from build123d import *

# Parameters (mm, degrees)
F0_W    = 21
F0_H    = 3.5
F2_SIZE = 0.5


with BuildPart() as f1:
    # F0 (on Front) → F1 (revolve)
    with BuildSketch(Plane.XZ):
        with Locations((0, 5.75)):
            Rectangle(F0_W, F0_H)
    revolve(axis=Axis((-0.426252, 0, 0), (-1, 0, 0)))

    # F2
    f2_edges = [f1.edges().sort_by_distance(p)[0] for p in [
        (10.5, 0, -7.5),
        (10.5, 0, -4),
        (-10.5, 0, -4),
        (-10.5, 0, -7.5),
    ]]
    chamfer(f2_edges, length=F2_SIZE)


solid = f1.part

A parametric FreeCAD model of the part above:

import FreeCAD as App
import Part
import Sketcher
Q = App.Units.Quantity


def edges_at(feature, points):
    """Names of the edges that pass closest to the given points."""
    edges = feature.Shape.Edges
    near = lambda p: min(range(len(edges)), key=lambda i: edges[i].distToShape(Part.Vertex(*p))[0])
    return sorted({f"Edge{near(p) + 1}" for p in points})


def add_polygon(sketch, points):
    """Adds a closed chain of lines whose ends are joined by coincident constraints."""
    first, n = sketch.GeometryCount, len(points)
    for a, b in zip(points, points[1:] + points[:1]):
        sketch.addGeometry(Part.LineSegment(App.Vector(*a, 0), App.Vector(*b, 0)), False)
    for i in range(n):
        sketch.addConstraint(Sketcher.Constraint("Coincident", first + i, 2, first + (i + 1) % n, 1))

doc = App.newDocument("Part")
body = doc.addObject("PartDesign::Body", "Body")

# Sketch on XZ plane
sketch1 = body.newObject("Sketcher::SketchObject", "Sketch")
sketch1.AttachmentSupport = (doc.getObject("XZ_Plane"), [""])
sketch1.MapMode = "FlatFace"
add_polygon(sketch1, [(-10.5, 7.5), (-10.5, 4), (10.5, 4), (10.5, 7.5)])  # lines 0-3
sketch1.addConstraint(Sketcher.Constraint("Vertical", 0))
sketch1.addConstraint(Sketcher.Constraint("Horizontal", 1))
sketch1.addConstraint(Sketcher.Constraint("Vertical", 2))
sketch1.addConstraint(Sketcher.Constraint("Horizontal", 3))
sketch1.addConstraint(Sketcher.Constraint("DistanceX", 1, 1, 1, 2, Q("21 mm")))
sketch1.addConstraint(Sketcher.Constraint("DistanceY", 0, 2, 0, 1, Q("3.5 mm")))
sketch1.addConstraint(Sketcher.Constraint("DistanceY", -1, 1, 0, 2, Q("4 mm")))
sketch1.addConstraint(Sketcher.Constraint("DistanceX", 0, 2, -1, 1, Q("10.5 mm")))
revolution = body.newObject("PartDesign::Revolution", "Revolution")
revolution.Profile = sketch1
revolution.ReferenceAxis = (sketch1, ["H_Axis"])
revolution.Angle = 360
doc.recompute()

chamfer = body.newObject("PartDesign::Chamfer", "Chamfer")
chamfer.Base = (revolution, edges_at(revolution, [
    (10.5, 0, -7.5),
    (10.5, 0, -4),
    (-10.5, 0, -4),
    (-10.5, 0, -7.5),
]))
chamfer.Size = 0.5

doc.recompute()
